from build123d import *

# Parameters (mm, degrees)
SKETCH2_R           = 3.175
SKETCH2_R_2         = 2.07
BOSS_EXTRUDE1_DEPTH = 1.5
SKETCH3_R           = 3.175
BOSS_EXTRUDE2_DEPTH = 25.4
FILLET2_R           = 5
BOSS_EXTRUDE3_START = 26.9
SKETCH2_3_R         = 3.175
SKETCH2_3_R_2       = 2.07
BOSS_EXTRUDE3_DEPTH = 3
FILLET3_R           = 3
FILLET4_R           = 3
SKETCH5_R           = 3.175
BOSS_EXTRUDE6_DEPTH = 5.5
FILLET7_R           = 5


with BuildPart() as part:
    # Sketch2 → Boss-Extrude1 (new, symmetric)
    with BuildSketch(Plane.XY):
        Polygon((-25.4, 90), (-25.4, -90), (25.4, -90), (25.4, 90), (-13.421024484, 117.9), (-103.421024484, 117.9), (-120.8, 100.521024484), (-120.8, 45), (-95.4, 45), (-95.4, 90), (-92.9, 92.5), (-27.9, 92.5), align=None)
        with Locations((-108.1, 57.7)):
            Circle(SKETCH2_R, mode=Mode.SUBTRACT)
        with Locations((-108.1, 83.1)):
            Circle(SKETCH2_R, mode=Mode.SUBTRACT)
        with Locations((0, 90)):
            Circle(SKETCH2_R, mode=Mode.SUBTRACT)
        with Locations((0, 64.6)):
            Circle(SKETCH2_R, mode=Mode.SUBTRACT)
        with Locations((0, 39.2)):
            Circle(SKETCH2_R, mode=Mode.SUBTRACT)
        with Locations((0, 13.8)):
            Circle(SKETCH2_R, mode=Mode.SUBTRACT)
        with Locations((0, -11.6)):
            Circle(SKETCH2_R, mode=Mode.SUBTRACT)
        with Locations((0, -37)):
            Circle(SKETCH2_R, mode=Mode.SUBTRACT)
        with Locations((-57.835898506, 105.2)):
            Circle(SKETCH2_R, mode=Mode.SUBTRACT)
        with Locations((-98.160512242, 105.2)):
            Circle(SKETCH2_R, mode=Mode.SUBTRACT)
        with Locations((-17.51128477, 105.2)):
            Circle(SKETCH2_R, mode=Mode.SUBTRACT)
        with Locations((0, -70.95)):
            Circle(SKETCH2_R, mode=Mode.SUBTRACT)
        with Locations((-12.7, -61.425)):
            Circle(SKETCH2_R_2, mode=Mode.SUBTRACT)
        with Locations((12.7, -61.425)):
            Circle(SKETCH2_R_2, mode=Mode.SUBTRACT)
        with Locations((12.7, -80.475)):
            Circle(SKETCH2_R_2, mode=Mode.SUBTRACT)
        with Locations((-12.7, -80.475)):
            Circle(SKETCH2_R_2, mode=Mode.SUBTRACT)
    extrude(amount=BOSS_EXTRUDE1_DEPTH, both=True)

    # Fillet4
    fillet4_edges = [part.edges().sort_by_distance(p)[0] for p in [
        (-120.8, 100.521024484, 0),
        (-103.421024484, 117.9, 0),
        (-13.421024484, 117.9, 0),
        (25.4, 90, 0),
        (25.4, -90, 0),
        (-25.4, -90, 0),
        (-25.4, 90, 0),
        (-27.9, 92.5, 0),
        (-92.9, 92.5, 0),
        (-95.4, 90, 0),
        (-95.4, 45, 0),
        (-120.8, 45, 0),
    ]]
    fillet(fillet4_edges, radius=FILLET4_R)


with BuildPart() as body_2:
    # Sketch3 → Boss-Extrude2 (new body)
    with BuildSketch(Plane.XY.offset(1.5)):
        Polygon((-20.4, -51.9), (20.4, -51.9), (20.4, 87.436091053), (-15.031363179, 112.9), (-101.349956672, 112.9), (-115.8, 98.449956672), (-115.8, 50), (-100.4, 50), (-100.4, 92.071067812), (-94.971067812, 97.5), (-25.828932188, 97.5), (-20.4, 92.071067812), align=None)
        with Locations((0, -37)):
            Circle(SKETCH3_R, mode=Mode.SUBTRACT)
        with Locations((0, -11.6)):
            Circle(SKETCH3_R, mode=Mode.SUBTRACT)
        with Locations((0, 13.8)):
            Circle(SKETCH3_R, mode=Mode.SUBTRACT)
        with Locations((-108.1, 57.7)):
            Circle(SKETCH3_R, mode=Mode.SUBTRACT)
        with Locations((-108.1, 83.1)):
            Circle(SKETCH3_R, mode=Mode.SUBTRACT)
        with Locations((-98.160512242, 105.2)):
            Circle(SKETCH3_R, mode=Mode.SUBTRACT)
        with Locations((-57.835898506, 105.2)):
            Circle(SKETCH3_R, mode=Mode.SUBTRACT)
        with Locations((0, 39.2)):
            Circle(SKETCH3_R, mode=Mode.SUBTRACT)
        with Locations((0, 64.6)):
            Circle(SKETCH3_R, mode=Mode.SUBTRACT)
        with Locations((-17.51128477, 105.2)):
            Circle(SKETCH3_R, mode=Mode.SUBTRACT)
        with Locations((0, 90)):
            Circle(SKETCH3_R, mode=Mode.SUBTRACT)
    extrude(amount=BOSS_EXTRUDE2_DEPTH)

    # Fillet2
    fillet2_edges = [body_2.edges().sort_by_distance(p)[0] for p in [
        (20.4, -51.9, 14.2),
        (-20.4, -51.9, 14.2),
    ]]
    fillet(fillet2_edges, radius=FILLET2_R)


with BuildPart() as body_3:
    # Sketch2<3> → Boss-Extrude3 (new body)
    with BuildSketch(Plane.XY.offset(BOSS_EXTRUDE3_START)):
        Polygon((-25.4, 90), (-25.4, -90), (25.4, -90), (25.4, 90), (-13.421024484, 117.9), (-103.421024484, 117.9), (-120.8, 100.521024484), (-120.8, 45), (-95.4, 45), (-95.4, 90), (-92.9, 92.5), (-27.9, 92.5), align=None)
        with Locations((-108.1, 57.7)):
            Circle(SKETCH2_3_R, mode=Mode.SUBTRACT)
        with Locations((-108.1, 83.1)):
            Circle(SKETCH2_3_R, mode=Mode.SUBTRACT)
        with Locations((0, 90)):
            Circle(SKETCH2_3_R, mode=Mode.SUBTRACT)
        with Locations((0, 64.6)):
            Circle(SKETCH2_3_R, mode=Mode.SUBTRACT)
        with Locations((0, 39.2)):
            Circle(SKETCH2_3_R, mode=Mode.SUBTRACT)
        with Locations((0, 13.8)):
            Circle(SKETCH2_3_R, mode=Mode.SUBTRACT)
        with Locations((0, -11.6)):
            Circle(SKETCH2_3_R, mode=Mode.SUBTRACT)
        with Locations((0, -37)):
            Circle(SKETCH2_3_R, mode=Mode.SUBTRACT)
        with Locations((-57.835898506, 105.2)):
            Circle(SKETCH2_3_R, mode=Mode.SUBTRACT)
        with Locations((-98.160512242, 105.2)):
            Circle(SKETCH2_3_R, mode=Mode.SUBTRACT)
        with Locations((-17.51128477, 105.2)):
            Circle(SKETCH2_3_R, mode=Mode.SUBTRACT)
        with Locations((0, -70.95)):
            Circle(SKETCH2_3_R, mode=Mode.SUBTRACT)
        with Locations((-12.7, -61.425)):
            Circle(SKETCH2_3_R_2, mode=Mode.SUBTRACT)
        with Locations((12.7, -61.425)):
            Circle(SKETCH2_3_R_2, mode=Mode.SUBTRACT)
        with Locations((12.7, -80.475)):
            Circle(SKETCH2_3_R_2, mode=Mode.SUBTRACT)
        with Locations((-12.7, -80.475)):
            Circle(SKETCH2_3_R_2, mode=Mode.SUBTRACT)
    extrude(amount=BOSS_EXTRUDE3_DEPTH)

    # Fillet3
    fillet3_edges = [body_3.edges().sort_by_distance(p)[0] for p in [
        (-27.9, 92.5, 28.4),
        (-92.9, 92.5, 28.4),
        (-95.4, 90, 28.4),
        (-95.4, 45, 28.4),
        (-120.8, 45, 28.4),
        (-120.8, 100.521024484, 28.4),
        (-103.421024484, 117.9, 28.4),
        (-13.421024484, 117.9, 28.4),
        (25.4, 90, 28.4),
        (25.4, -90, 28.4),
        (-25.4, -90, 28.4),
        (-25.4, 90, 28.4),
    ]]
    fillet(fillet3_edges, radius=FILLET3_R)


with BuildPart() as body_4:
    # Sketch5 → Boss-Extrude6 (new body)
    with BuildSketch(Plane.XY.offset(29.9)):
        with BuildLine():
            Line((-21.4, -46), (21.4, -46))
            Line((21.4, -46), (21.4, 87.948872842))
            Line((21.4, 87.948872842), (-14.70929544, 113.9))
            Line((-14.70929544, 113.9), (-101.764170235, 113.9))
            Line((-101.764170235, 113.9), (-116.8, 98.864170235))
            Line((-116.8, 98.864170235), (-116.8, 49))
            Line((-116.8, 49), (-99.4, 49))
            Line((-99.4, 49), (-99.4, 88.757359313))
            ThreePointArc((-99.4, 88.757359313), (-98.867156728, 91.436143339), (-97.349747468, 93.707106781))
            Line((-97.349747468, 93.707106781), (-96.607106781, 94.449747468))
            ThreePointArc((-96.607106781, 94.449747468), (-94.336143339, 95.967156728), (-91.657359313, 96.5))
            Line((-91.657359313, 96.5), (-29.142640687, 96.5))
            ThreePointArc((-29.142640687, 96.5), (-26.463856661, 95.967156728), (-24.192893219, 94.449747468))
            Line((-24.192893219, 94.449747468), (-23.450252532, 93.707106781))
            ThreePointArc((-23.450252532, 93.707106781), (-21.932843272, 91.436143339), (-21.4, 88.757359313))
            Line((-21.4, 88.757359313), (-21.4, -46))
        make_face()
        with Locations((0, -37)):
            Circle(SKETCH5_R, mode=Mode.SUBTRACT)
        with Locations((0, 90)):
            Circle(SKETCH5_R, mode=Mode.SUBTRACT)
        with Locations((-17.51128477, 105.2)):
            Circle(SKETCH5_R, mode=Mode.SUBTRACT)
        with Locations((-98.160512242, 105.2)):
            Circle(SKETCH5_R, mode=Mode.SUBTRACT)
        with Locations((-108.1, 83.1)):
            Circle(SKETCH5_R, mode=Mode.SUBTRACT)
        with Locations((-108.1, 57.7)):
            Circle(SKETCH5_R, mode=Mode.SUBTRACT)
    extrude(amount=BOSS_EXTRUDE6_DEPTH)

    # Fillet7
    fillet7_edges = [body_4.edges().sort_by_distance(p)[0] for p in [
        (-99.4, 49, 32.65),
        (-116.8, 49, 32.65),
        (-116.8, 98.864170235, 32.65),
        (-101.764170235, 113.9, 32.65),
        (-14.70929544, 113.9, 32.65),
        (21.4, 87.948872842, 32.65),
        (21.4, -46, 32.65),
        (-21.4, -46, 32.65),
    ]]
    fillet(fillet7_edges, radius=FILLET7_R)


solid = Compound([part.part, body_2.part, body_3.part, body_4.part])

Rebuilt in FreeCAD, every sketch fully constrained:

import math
import FreeCAD as App
import Part
import Sketcher
from FreeCAD import Vector


def edges_at(feature, points):
    """Names of the edges that pass closest to the given points."""
    edges = feature.Shape.Edges
    near = lambda p: min(range(len(edges)), key=lambda i: edges[i].distToShape(Part.Vertex(*p))[0])
    return sorted({f"Edge{near(p) + 1}" for p in points})


def add_polygon(sketch, points):
    """Adds a closed chain of lines whose ends are joined by coincident constraints."""
    first, n = sketch.GeometryCount, len(points)
    for a, b in zip(points, points[1:] + points[:1]):
        sketch.addGeometry(Part.LineSegment(App.Vector(*a, 0), App.Vector(*b, 0)), False)
    for i in range(n):
        sketch.addConstraint(Sketcher.Constraint("Coincident", first + i, 2, first + (i + 1) % n, 1))

doc = App.newDocument("Part")
body = doc.addObject("PartDesign::Body", "Body")

# Sketch on XY plane
sketch1 = doc.addObject("Sketcher::SketchObject", "Sketch")
body.addObject(sketch1)
sketch1.AttachmentSupport = (doc.XY_Plane, [""])
sketch1.MapMode = "FlatFace"
add_polygon(sketch1, [(-25.4, 90), (-25.4, -90), (25.4, -90), (25.4, 90), (-13.421024, 117.9), (-103.421024, 117.9), (-120.8, 100.521024), (-120.8, 45), (-95.4, 45), (-95.4, 90), (-92.9, 92.5), (-27.9, 92.5)])  # lines 0-11
sketch1.addGeometry(Part.Circle(Vector(-12.7, -80.475, 0), Vector(0, 0, 1), 2.07), False)  # 12
sketch1.addGeometry(Part.Circle(Vector(-12.7, -61.425, 0), Vector(0, 0, 1), 2.07), False)  # 13
sketch1.addGeometry(Part.Circle(Vector(0, -70.95, 0), Vector(0, 0, 1), 3.175), False)  # 14
sketch1.addGeometry(Part.Circle(Vector(12.7, -80.475, 0), Vector(0, 0, 1), 2.07), False)  # 15
sketch1.addGeometry(Part.Circle(Vector(12.7, -61.425, 0), Vector(0, 0, 1), 2.07), False)  # 16
sketch1.addGeometry(Part.Circle(Vector(0, -37, 0), Vector(0, 0, 1), 3.175), False)  # 17
sketch1.addGeometry(Part.Circle(Vector(0, -11.6, 0), Vector(0, 0, 1), 3.175), False)  # 18
sketch1.addGeometry(Part.Circle(Vector(-108.1, 57.7, 0), Vector(0, 0, 1), 3.175), False)  # 19
sketch1.addGeometry(Part.Circle(Vector(-108.1, 83.1, 0), Vector(0, 0, 1), 3.175), False)  # 20
sketch1.addGeometry(Part.Circle(Vector(-98.160512, 105.2, 0), Vector(0, 0, 1), 3.175), False)  # 21
sketch1.addGeometry(Part.Circle(Vector(-57.835899, 105.2, 0), Vector(0, 0, 1), 3.175), False)  # 22
sketch1.addGeometry(Part.Circle(Vector(0, 13.8, 0), Vector(0, 0, 1), 3.175), False)  # 23
sketch1.addGeometry(Part.Circle(Vector(0, 39.2, 0), Vector(0, 0, 1), 3.175), False)  # 24
sketch1.addGeometry(Part.Circle(Vector(-17.511285, 105.2, 0), Vector(0, 0, 1), 3.175), False)  # 25
sketch1.addGeometry(Part.Circle(Vector(0, 64.6, 0), Vector(0, 0, 1), 3.175), False)  # 26
sketch1.addGeometry(Part.Circle(Vector(0, 90, 0), Vector(0, 0, 1), 3.175), False)  # 27
sketch1.addConstraint(Sketcher.Constraint("Vertical", 0))
sketch1.addConstraint(Sketcher.Constraint("Horizontal", 1))
sketch1.addConstraint(Sketcher.Constraint("Vertical", 2))
sketch1.addConstraint(Sketcher.Constraint("Horizontal", 4))
sketch1.addConstraint(Sketcher.Constraint("Vertical", 6))
sketch1.addConstraint(Sketcher.Constraint("Horizontal", 7))
sketch1.addConstraint(Sketcher.Constraint("Vertical", 8))
sketch1.addConstraint(Sketcher.Constraint("Horizontal", 10))
sketch1.addConstraint(Sketcher.Constraint("Equal", 12, 13))
sketch1.addConstraint(Sketcher.Constraint("Equal", 13, 15))
sketch1.addConstraint(Sketcher.Constraint("Equal", 15, 16))
sketch1.addConstraint(Sketcher.Constraint("Equal", 14, 17))
sketch1.addConstraint(Sketcher.Constraint("Equal", 17, 18))
sketch1.addConstraint(Sketcher.Constraint("Equal", 18, 19))
sketch1.addConstraint(Sketcher.Constraint("Equal", 19, 20))
sketch1.addConstraint(Sketcher.Constraint("Equal", 20, 21))
sketch1.addConstraint(Sketcher.Constraint("Equal", 21, 22))
sketch1.addConstraint(Sketcher.Constraint("Equal", 22, 23))
sketch1.addConstraint(Sketcher.Constraint("Equal", 23, 24))
sketch1.addConstraint(Sketcher.Constraint("Equal", 24, 25))
sketch1.addConstraint(Sketcher.Constraint("Equal", 25, 26))
sketch1.addConstraint(Sketcher.Constraint("Equal", 26, 27))
sketch1.addConstraint(Sketcher.Constraint("Symmetric", 0, 2, 2, 2, -1, 1))
sketch1.addConstraint(Sketcher.Constraint("Symmetric", 12, 3, 15, 3, -2))
sketch1.addConstraint(Sketcher.Constraint("Symmetric", 13, 3, 16, 3, -2))
sketch1.addConstraint(Sketcher.Constraint("PointOnObject", 14, 3, -2))
sketch1.addConstraint(Sketcher.Constraint("PointOnObject", 17, 3, -2))
sketch1.addConstraint(Sketcher.Constraint("PointOnObject", 18, 3, -2))
sketch1.addConstraint(Sketcher.Constraint("PointOnObject", 23, 3, -2))
sketch1.addConstraint(Sketcher.Constraint("PointOnObject", 24, 3, -2))
sketch1.addConstraint(Sketcher.Constraint("PointOnObject", 26, 3, -2))
sketch1.addConstraint(Sketcher.Constraint("PointOnObject", 27, 3, -2))
sketch1.addConstraint(Sketcher.Constraint("Parallel", 5, 9))
sketch1.addConstraint(Sketcher.Constraint("Perpendicular", 9, 11))
sketch1.addConstraint(Sketcher.Constraint("Horizontal", 21, 3, 22, 3))
sketch1.addConstraint(Sketcher.Constraint("Horizontal", 22, 3, 25, 3))
sketch1.addConstraint(Sketcher.Constraint("Horizontal", 27, 3, 2, 2))
sketch1.addConstraint(Sketcher.Constraint("Horizontal", 2, 2, 8, 2))
sketch1.addConstraint(Sketcher.Constraint("Horizontal", 8, 2, 11, 2))
sketch1.addConstraint(Sketcher.Constraint("Vertical", 12, 3, 13, 3))
sketch1.addConstraint(Sketcher.Constraint("Vertical", 19, 3, 20, 3))
sketch1.addConstraint(Sketcher.Constraint("Equal", 9, 11))
sketch1.addConstraint(Sketcher.Constraint("Diameter", 12, 4.14))
sketch1.addConstraint(Sketcher.Constraint("Diameter", 14, 6.35))
sketch1.addConstraint(Sketcher.Constraint("DistanceX", 4, 2, 4, 1, 90.0))
sketch1.addConstraint(Sketcher.Constraint("DistanceX", 10, 1, 10, 2, 65.0))
sketch1.addConstraint(Sketcher.Constraint("DistanceY", 0, 2, 0, 1, 180.0))
sketch1.addConstraint(Sketcher.Constraint("DistanceY", 8, 1, 8, 2, 45.0))
sketch1.addConstraint(Sketcher.Constraint("DistanceX", 1, 1, 1, 2, 50.8))
sketch1.addConstraint(Sketcher.Constraint("DistanceX", 7, 1, 7, 2, 25.4))
sketch1.addConstraint(Sketcher.Constraint("DistanceY", 17, 3, -1, 1, 37.0))
sketch1.addConstraint(Sketcher.Constraint("DistanceY", 24, 3, 22, 3, 66.0))
sketch1.addConstraint(Sketcher.Constraint("DistanceX", 12, 3, -1, 1, 12.7))
sketch1.addConstraint(Sketcher.Constraint("DistanceY", 18, 3, -1, 1, 11.6))
sketch1.addConstraint(Sketcher.Constraint("DistanceX", 19, 3, -1, 1, 108.1))
sketch1.addConstraint(Sketcher.Constraint("DistanceY", -1, 1, 19, 3, 57.7))
sketch1.addConstraint(Sketcher.Constraint("DistanceY", -1, 1, 20, 3, 83.1))
sketch1.addConstraint(Sketcher.Constraint("DistanceY", -1, 1, 21, 3, 105.2))
sketch1.addConstraint(Sketcher.Constraint("DistanceY", -1, 1, 23, 3, 13.8))
sketch1.addConstraint(Sketcher.Constraint("DistanceY", -1, 1, 26, 3, 64.6))
sketch1.addConstraint(Sketcher.Constraint("DistanceY", -1, 1, 3, 2, 117.9))
sketch1.addConstraint(Sketcher.Constraint("DistanceX", 5, 2, -1, 1, 120.8))
sketch1.addConstraint(Sketcher.Constraint("DistanceY", 14, 3, -1, 1, 70.95))
sketch1.addConstraint(Sketcher.Constraint("DistanceY", 12, 3, 13, 3, 19.05))
sketch1.addConstraint(Sketcher.Constraint("DistanceY", 12, 3, -1, 1, 80.475))
sketch1.addConstraint(Sketcher.Constraint("DistanceX", 22, 3, -1, 1, 57.835899))
sketch1.addConstraint(Sketcher.Constraint("DistanceY", 6, 2, 6, 1, 55.521024))
sketch1.addConstraint(Sketcher.Constraint("DistanceX", 25, 3, 3, 2, 4.09026))
sketch1.addConstraint(Sketcher.Constraint("DistanceX", 21, 3, -1, 1, 98.160512))
pad1 = doc.addObject("PartDesign::Pad", "Pad")
body.addObject(pad1)
pad1.Profile = sketch1
pad1.Length = 3
pad1.Midplane = True
doc.recompute()

fillet = doc.addObject("PartDesign::Fillet", "Fillet")
body.addObject(fillet)
fillet.Base = (pad1, edges_at(pad1, [
    (-120.8, 100.521, 0),
    (-103.421, 117.9, 0),
    (-13.421, 117.9, 0),
    (25.4, 90, 0),
    (25.4, -90, 0),
    (-25.4, -90, 0),
    (-25.4, 90, 0),
    (-27.9, 92.5, 0),
    (-92.9, 92.5, 0),
    (-95.4, 90, 0),
    (-95.4, 45, 0),
    (-120.8, 45, 0),
]))
fillet.Radius = 3
body2 = doc.addObject("PartDesign::Body", "Body001")

# Sketch on XY plane
sketch2 = doc.addObject("Sketcher::SketchObject", "Sketch001")
body2.addObject(sketch2)
sketch2.AttachmentSupport = (doc.getObject("XY_Plane001"), [""])
sketch2.MapMode = "FlatFace"
sketch2.AttachmentOffset = App.Placement(Vector(0, 0, 1.5), App.Rotation())
add_polygon(sketch2, [(-20.4, -51.9), (20.4, -51.9), (20.4, 87.436091), (-15.031363, 112.9), (-101.349957, 112.9), (-115.8, 98.449957), (-115.8, 50), (-100.4, 50), (-100.4, 92.071068), (-94.971068, 97.5), (-25.828932, 97.5), (-20.4, 92.071068)])  # lines 0-11
sketch2.addGeometry(Part.Circle(Vector(0, -37, 0), Vector(0, 0, 1), 3.175), False)  # 12
sketch2.addGeometry(Part.Circle(Vector(0, -11.6, 0), Vector(0, 0, 1), 3.175), False)  # 13
sketch2.addGeometry(Part.Circle(Vector(0, 13.8, 0), Vector(0, 0, 1), 3.175), False)  # 14
sketch2.addGeometry(Part.Circle(Vector(-108.1, 57.7, 0), Vector(0, 0, 1), 3.175), False)  # 15
sketch2.addGeometry(Part.Circle(Vector(-108.1, 83.1, 0), Vector(0, 0, 1), 3.175), False)  # 16
sketch2.addGeometry(Part.Circle(Vector(-98.160512, 105.2, 0), Vector(0, 0, 1), 3.175), False)  # 17
sketch2.addGeometry(Part.Circle(Vector(-57.835899, 105.2, 0), Vector(0, 0, 1), 3.175), False)  # 18
sketch2.addGeometry(Part.Circle(Vector(0, 39.2, 0), Vector(0, 0, 1), 3.175), False)  # 19
sketch2.addGeometry(Part.Circle(Vector(0, 64.6, 0), Vector(0, 0, 1), 3.175), False)  # 20
sketch2.addGeometry(Part.Circle(Vector(-17.511285, 105.2, 0), Vector(0, 0, 1), 3.175), False)  # 21
sketch2.addGeometry(Part.Circle(Vector(0, 90, 0), Vector(0, 0, 1), 3.175), False)  # 22
sketch2.addConstraint(Sketcher.Constraint("Horizontal", 0))
sketch2.addConstraint(Sketcher.Constraint("Vertical", 1))
sketch2.addConstraint(Sketcher.Constraint("Horizontal", 3))
sketch2.addConstraint(Sketcher.Constraint("Vertical", 5))
sketch2.addConstraint(Sketcher.Constraint("Horizontal", 6))
sketch2.addConstraint(Sketcher.Constraint("Vertical", 7))
sketch2.addConstraint(Sketcher.Constraint("Horizontal", 9))
sketch2.addConstraint(Sketcher.Constraint("Vertical", 11))
sketch2.addConstraint(Sketcher.Constraint("Equal", 12, 13))
sketch2.addConstraint(Sketcher.Constraint("Equal", 13, 14))
sketch2.addConstraint(Sketcher.Constraint("Equal", 14, 15))
sketch2.addConstraint(Sketcher.Constraint("Equal", 15, 16))
sketch2.addConstraint(Sketcher.Constraint("Equal", 16, 17))
sketch2.addConstraint(Sketcher.Constraint("Equal", 17, 18))
sketch2.addConstraint(Sketcher.Constraint("Equal", 18, 19))
sketch2.addConstraint(Sketcher.Constraint("Equal", 19, 20))
sketch2.addConstraint(Sketcher.Constraint("Equal", 20, 21))
sketch2.addConstraint(Sketcher.Constraint("Equal", 21, 22))
sketch2.addConstraint(Sketcher.Constraint("PointOnObject", 12, 3, -2))
sketch2.addConstraint(Sketcher.Constraint("PointOnObject", 13, 3, -2))
sketch2.addConstraint(Sketcher.Constraint("PointOnObject", 14, 3, -2))
sketch2.addConstraint(Sketcher.Constraint("PointOnObject", 19, 3, -2))
sketch2.addConstraint(Sketcher.Constraint("PointOnObject", 20, 3, -2))
sketch2.addConstraint(Sketcher.Constraint("PointOnObject", 22, 3, -2))
sketch2.addConstraint(Sketcher.Constraint("Parallel", 4, 8))
sketch2.addConstraint(Sketcher.Constraint("Perpendicular", 8, 10))
sketch2.addConstraint(Sketcher.Constraint("Horizontal", 17, 3, 18, 3))
sketch2.addConstraint(Sketcher.Constraint("Horizontal", 18, 3, 21, 3))
sketch2.addConstraint(Sketcher.Constraint("Horizontal", 7, 2, 10, 2))
sketch2.addConstraint(Sketcher.Constraint("Vertical", 15, 3, 16, 3))
sketch2.addConstraint(Sketcher.Constraint("Equal", 8, 10))
sketch2.addConstraint(Sketcher.Constraint("Diameter", 12, 6.35))
sketch2.addConstraint(Sketcher.Constraint("DistanceX", 0, 1, 0, 2, 40.8))
sketch2.addConstraint(Sketcher.Constraint("DistanceX", 6, 1, 6, 2, 15.4))
sketch2.addConstraint(Sketcher.Constraint("DistanceY", 12, 3, -1, 1, 37.0))
sketch2.addConstraint(Sketcher.Constraint("DistanceY", -1, 1, 22, 3, 90.0))
sketch2.addConstraint(Sketcher.Constraint("DistanceY", -1, 1, 5, 2, 50.0))
sketch2.addConstraint(Sketcher.Constraint("DistanceY", 19, 3, 18, 3, 66.0))
sketch2.addConstraint(Sketcher.Constraint("DistanceY", 13, 3, -1, 1, 11.6))
sketch2.addConstraint(Sketcher.Constraint("DistanceY", -1, 1, 14, 3, 13.8))
sketch2.addConstraint(Sketcher.Constraint("DistanceX", 15, 3, -1, 1, 108.1))
sketch2.addConstraint(Sketcher.Constraint("DistanceY", -1, 1, 15, 3, 57.7))
sketch2.addConstraint(Sketcher.Constraint("DistanceY", -1, 1, 16, 3, 83.1))
sketch2.addConstraint(Sketcher.Constraint("DistanceY", -1, 1, 17, 3, 105.2))
sketch2.addConstraint(Sketcher.Constraint("DistanceY", -1, 1, 20, 3, 64.6))
sketch2.addConstraint(Sketcher.Constraint("DistanceX", -1, 1, 0, 2, 20.4))
sketch2.addConstraint(Sketcher.Constraint("DistanceY", 0, 2, -1, 1, 51.9))
sketch2.addConstraint(Sketcher.Constraint("DistanceY", -1, 1, 2, 2, 112.9))
sketch2.addConstraint(Sketcher.Constraint("DistanceX", 4, 2, -1, 1, 115.8))
sketch2.addConstraint(Sketcher.Constraint("DistanceY", -1, 1, 8, 2, 97.5))
sketch2.addConstraint(Sketcher.Constraint("DistanceY", 1, 1, 1, 2, 139.336091))
sketch2.addConstraint(Sketcher.Constraint("DistanceX", 18, 3, -1, 1, 57.835899))
sketch2.addConstraint(Sketcher.Constraint("Distance", 8, 7.67767))
sketch2.addConstraint(Sketcher.Constraint("DistanceX", 3, 2, 3, 1, 86.318593))
sketch2.addConstraint(Sketcher.Constraint("DistanceY", 5, 2, 5, 1, 48.449957))
sketch2.addConstraint(Sketcher.Constraint("DistanceX", 21, 3, 2, 2, 2.479922))
sketch2.addConstraint(Sketcher.Constraint("DistanceX", 17, 3, -1, 1, 98.160512))
pad2 = doc.addObject("PartDesign::Pad", "Pad001")
body2.addObject(pad2)
pad2.Profile = sketch2
pad2.Length = 25.4
doc.recompute()

fillet2 = doc.addObject("PartDesign::Fillet", "Fillet001")
body2.addObject(fillet2)
fillet2.Base = (pad2, edges_at(pad2, [(20.4, -51.9, 14.2), (-20.4, -51.9, 14.2)]))
fillet2.Radius = 5
body3 = doc.addObject("PartDesign::Body", "Body002")

# Sketch on XY plane
sketch3 = doc.addObject("Sketcher::SketchObject", "Sketch002")
body3.addObject(sketch3)
sketch3.AttachmentSupport = (doc.getObject("XY_Plane002"), [""])
sketch3.MapMode = "FlatFace"
sketch3.AttachmentOffset = App.Placement(Vector(0, 0, 26.9), App.Rotation())
add_polygon(sketch3, [(-25.4, 90), (-25.4, -90), (25.4, -90), (25.4, 90), (-13.421024, 117.9), (-103.421024, 117.9), (-120.8, 100.521024), (-120.8, 45), (-95.4, 45), (-95.4, 90), (-92.9, 92.5), (-27.9, 92.5)])  # lines 0-11
sketch3.addGeometry(Part.Circle(Vector(-12.7, -80.475, 0), Vector(0, 0, 1), 2.07), False)  # 12
sketch3.addGeometry(Part.Circle(Vector(-12.7, -61.425, 0), Vector(0, 0, 1), 2.07), False)  # 13
sketch3.addGeometry(Part.Circle(Vector(0, -70.95, 0), Vector(0, 0, 1), 3.175), False)  # 14
sketch3.addGeometry(Part.Circle(Vector(12.7, -80.475, 0), Vector(0, 0, 1), 2.07), False)  # 15
sketch3.addGeometry(Part.Circle(Vector(12.7, -61.425, 0), Vector(0, 0, 1), 2.07), False)  # 16
sketch3.addGeometry(Part.Circle(Vector(0, -37, 0), Vector(0, 0, 1), 3.175), False)  # 17
sketch3.addGeometry(Part.Circle(Vector(0, -11.6, 0), Vector(0, 0, 1), 3.175), False)  # 18
sketch3.addGeometry(Part.Circle(Vector(-108.1, 57.7, 0), Vector(0, 0, 1), 3.175), False)  # 19
sketch3.addGeometry(Part.Circle(Vector(-108.1, 83.1, 0), Vector(0, 0, 1), 3.175), False)  # 20
sketch3.addGeometry(Part.Circle(Vector(-98.160512, 105.2, 0), Vector(0, 0, 1), 3.175), False)  # 21
sketch3.addGeometry(Part.Circle(Vector(-57.835899, 105.2, 0), Vector(0, 0, 1), 3.175), False)  # 22
sketch3.addGeometry(Part.Circle(Vector(0, 13.8, 0), Vector(0, 0, 1), 3.175), False)  # 23
sketch3.addGeometry(Part.Circle(Vector(0, 39.2, 0), Vector(0, 0, 1), 3.175), False)  # 24
sketch3.addGeometry(Part.Circle(Vector(-17.511285, 105.2, 0), Vector(0, 0, 1), 3.175), False)  # 25
sketch3.addGeometry(Part.Circle(Vector(0, 64.6, 0), Vector(0, 0, 1), 3.175), False)  # 26
sketch3.addGeometry(Part.Circle(Vector(0, 90, 0), Vector(0, 0, 1), 3.175), False)  # 27
sketch3.addConstraint(Sketcher.Constraint("Vertical", 0))
sketch3.addConstraint(Sketcher.Constraint("Horizontal", 1))
sketch3.addConstraint(Sketcher.Constraint("Vertical", 2))
sketch3.addConstraint(Sketcher.Constraint("Horizontal", 4))
sketch3.addConstraint(Sketcher.Constraint("Vertical", 6))
sketch3.addConstraint(Sketcher.Constraint("Horizontal", 7))
sketch3.addConstraint(Sketcher.Constraint("Vertical", 8))
sketch3.addConstraint(Sketcher.Constraint("Horizontal", 10))
sketch3.addConstraint(Sketcher.Constraint("Equal", 12, 13))
sketch3.addConstraint(Sketcher.Constraint("Equal", 13, 15))
sketch3.addConstraint(Sketcher.Constraint("Equal", 15, 16))
sketch3.addConstraint(Sketcher.Constraint("Equal", 14, 17))
sketch3.addConstraint(Sketcher.Constraint("Equal", 17, 18))
sketch3.addConstraint(Sketcher.Constraint("Equal", 18, 19))
sketch3.addConstraint(Sketcher.Constraint("Equal", 19, 20))
sketch3.addConstraint(Sketcher.Constraint("Equal", 20, 21))
sketch3.addConstraint(Sketcher.Constraint("Equal", 21, 22))
sketch3.addConstraint(Sketcher.Constraint("Equal", 22, 23))
sketch3.addConstraint(Sketcher.Constraint("Equal", 23, 24))
sketch3.addConstraint(Sketcher.Constraint("Equal", 24, 25))
sketch3.addConstraint(Sketcher.Constraint("Equal", 25, 26))
sketch3.addConstraint(Sketcher.Constraint("Equal", 26, 27))
sketch3.addConstraint(Sketcher.Constraint("Symmetric", 0, 2, 2, 2, -1, 1))
sketch3.addConstraint(Sketcher.Constraint("Symmetric", 12, 3, 15, 3, -2))
sketch3.addConstraint(Sketcher.Constraint("Symmetric", 13, 3, 16, 3, -2))
sketch3.addConstraint(Sketcher.Constraint("PointOnObject", 14, 3, -2))
sketch3.addConstraint(Sketcher.Constraint("PointOnObject", 17, 3, -2))
sketch3.addConstraint(Sketcher.Constraint("PointOnObject", 18, 3, -2))
sketch3.addConstraint(Sketcher.Constraint("PointOnObject", 23, 3, -2))
sketch3.addConstraint(Sketcher.Constraint("PointOnObject", 24, 3, -2))
sketch3.addConstraint(Sketcher.Constraint("PointOnObject", 26, 3, -2))
sketch3.addConstraint(Sketcher.Constraint("PointOnObject", 27, 3, -2))
sketch3.addConstraint(Sketcher.Constraint("Parallel", 5, 9))
sketch3.addConstraint(Sketcher.Constraint("Perpendicular", 9, 11))
sketch3.addConstraint(Sketcher.Constraint("Horizontal", 21, 3, 22, 3))
sketch3.addConstraint(Sketcher.Constraint("Horizontal", 22, 3, 25, 3))
sketch3.addConstraint(Sketcher.Constraint("Horizontal", 27, 3, 2, 2))
sketch3.addConstraint(Sketcher.Constraint("Horizontal", 2, 2, 8, 2))
sketch3.addConstraint(Sketcher.Constraint("Horizontal", 8, 2, 11, 2))
sketch3.addConstraint(Sketcher.Constraint("Vertical", 12, 3, 13, 3))
sketch3.addConstraint(Sketcher.Constraint("Vertical", 19, 3, 20, 3))
sketch3.addConstraint(Sketcher.Constraint("Equal", 9, 11))
sketch3.addConstraint(Sketcher.Constraint("Diameter", 12, 4.14))
sketch3.addConstraint(Sketcher.Constraint("Diameter", 14, 6.35))
sketch3.addConstraint(Sketcher.Constraint("DistanceX", 4, 2, 4, 1, 90.0))
sketch3.addConstraint(Sketcher.Constraint("DistanceX", 10, 1, 10, 2, 65.0))
sketch3.addConstraint(Sketcher.Constraint("DistanceY", 0, 2, 0, 1, 180.0))
sketch3.addConstraint(Sketcher.Constraint("DistanceY", 8, 1, 8, 2, 45.0))
sketch3.addConstraint(Sketcher.Constraint("DistanceX", 1, 1, 1, 2, 50.8))
sketch3.addConstraint(Sketcher.Constraint("DistanceX", 7, 1, 7, 2, 25.4))
sketch3.addConstraint(Sketcher.Constraint("DistanceY", 17, 3, -1, 1, 37.0))
sketch3.addConstraint(Sketcher.Constraint("DistanceY", 24, 3, 22, 3, 66.0))
sketch3.addConstraint(Sketcher.Constraint("DistanceX", 12, 3, -1, 1, 12.7))
sketch3.addConstraint(Sketcher.Constraint("DistanceY", 18, 3, -1, 1, 11.6))
sketch3.addConstraint(Sketcher.Constraint("DistanceX", 19, 3, -1, 1, 108.1))
sketch3.addConstraint(Sketcher.Constraint("DistanceY", -1, 1, 19, 3, 57.7))
sketch3.addConstraint(Sketcher.Constraint("DistanceY", -1, 1, 20, 3, 83.1))
sketch3.addConstraint(Sketcher.Constraint("DistanceY", -1, 1, 21, 3, 105.2))
sketch3.addConstraint(Sketcher.Constraint("DistanceY", -1, 1, 23, 3, 13.8))
sketch3.addConstraint(Sketcher.Constraint("DistanceY", -1, 1, 26, 3, 64.6))
sketch3.addConstraint(Sketcher.Constraint("DistanceY", -1, 1, 3, 2, 117.9))
sketch3.addConstraint(Sketcher.Constraint("DistanceX", 5, 2, -1, 1, 120.8))
sketch3.addConstraint(Sketcher.Constraint("DistanceY", 14, 3, -1, 1, 70.95))
sketch3.addConstraint(Sketcher.Constraint("DistanceY", 12, 3, 13, 3, 19.05))
sketch3.addConstraint(Sketcher.Constraint("DistanceY", 12, 3, -1, 1, 80.475))
sketch3.addConstraint(Sketcher.Constraint("DistanceX", 22, 3, -1, 1, 57.835899))
sketch3.addConstraint(Sketcher.Constraint("DistanceY", 6, 2, 6, 1, 55.521024))
sketch3.addConstraint(Sketcher.Constraint("DistanceX", 25, 3, 3, 2, 4.09026))
sketch3.addConstraint(Sketcher.Constraint("DistanceX", 21, 3, -1, 1, 98.160512))
pad3 = doc.addObject("PartDesign::Pad", "Pad002")
body3.addObject(pad3)
pad3.Profile = sketch3
pad3.Length = 3
doc.recompute()

fillet3 = doc.addObject("PartDesign::Fillet", "Fillet002")
body3.addObject(fillet3)
fillet3.Base = (pad3, edges_at(pad3, [
    (-27.9, 92.5, 28.4),
    (-92.9, 92.5, 28.4),
    (-95.4, 90, 28.4),
    (-95.4, 45, 28.4),
    (-120.8, 45, 28.4),
    (-120.8, 100.521, 28.4),
    (-103.421, 117.9, 28.4),
    (-13.421, 117.9, 28.4),
    (25.4, 90, 28.4),
    (25.4, -90, 28.4),
    (-25.4, -90, 28.4),
    (-25.4, 90, 28.4),
]))
fillet3.Radius = 3
body4 = doc.addObject("PartDesign::Body", "Body003")

# Sketch on XY plane
sketch4 = doc.addObject("Sketcher::SketchObject", "Sketch003")
body4.addObject(sketch4)
sketch4.AttachmentSupport = (doc.getObject("XY_Plane003"), [""])
sketch4.MapMode = "FlatFace"
sketch4.AttachmentOffset = App.Placement(Vector(0, 0, 29.9), App.Rotation())
sketch4.addGeometry(Part.LineSegment(Vector(-21.4, -46, 0), Vector(21.4, -46, 0)), False)
sketch4.addGeometry(Part.LineSegment(Vector(21.4, -46, 0), Vector(21.4, 87.948873, 0)), False)
sketch4.addGeometry(Part.LineSegment(Vector(21.4, 87.948873, 0), Vector(-14.709295, 113.9, 0)), False)
sketch4.addGeometry(Part.LineSegment(Vector(-14.709295, 113.9, 0), Vector(-101.76417, 113.9, 0)), False)
sketch4.addGeometry(Part.LineSegment(Vector(-101.76417, 113.9, 0), Vector(-116.8, 98.86417, 0)), False)
sketch4.addGeometry(Part.LineSegment(Vector(-116.8, 98.86417, 0), Vector(-116.8, 49, 0)), False)
sketch4.addGeometry(Part.LineSegment(Vector(-116.8, 49, 0), Vector(-99.4, 49, 0)), False)
sketch4.addGeometry(Part.LineSegment(Vector(-99.4, 49, 0), Vector(-99.4, 88.757359, 0)), False)
sketch4.addGeometry(Part.ArcOfCircle(Part.Circle(Vector(-92.4, 88.757359, 0), Vector(0, 0, 1), 7), math.radians(135), math.radians(180)), False)
sketch4.addGeometry(Part.LineSegment(Vector(-97.349747, 93.707107, 0), Vector(-96.607107, 94.449747, 0)), False)
sketch4.addGeometry(Part.ArcOfCircle(Part.Circle(Vector(-91.657359, 89.5, 0), Vector(0, 0, 1), 7), math.radians(90), math.radians(135)), False)
sketch4.addGeometry(Part.LineSegment(Vector(-91.657359, 96.5, 0), Vector(-29.142641, 96.5, 0)), False)
sketch4.addGeometry(Part.ArcOfCircle(Part.Circle(Vector(-29.142641, 89.5, 0), Vector(0, 0, 1), 7), math.radians(45), math.radians(90)), False)
sketch4.addGeometry(Part.LineSegment(Vector(-24.192893, 94.449747, 0), Vector(-23.450253, 93.707107, 0)), False)
sketch4.addGeometry(Part.ArcOfCircle(Part.Circle(Vector(-28.4, 88.757359, 0), Vector(0, 0, 1), 7), math.radians(0), math.radians(45)), False)
sketch4.addGeometry(Part.LineSegment(Vector(-21.4, 88.757359, 0), Vector(-21.4, -46, 0)), False)
sketch4.addGeometry(Part.Circle(Vector(0, -37, 0), Vector(0, 0, 1), 3.175), False)
sketch4.addGeometry(Part.Circle(Vector(-108.1, 57.7, 0), Vector(0, 0, 1), 3.175), False)
sketch4.addGeometry(Part.Circle(Vector(-108.1, 83.1, 0), Vector(0, 0, 1), 3.175), False)
sketch4.addGeometry(Part.Circle(Vector(-98.160512, 105.2, 0), Vector(0, 0, 1), 3.175), False)
sketch4.addGeometry(Part.Circle(Vector(-17.511285, 105.2, 0), Vector(0, 0, 1), 3.175), False)
sketch4.addGeometry(Part.Circle(Vector(0, 90, 0), Vector(0, 0, 1), 3.175), False)
sketch4.addConstraint(Sketcher.Constraint("Coincident", 0, 2, 1, 1))
sketch4.addConstraint(Sketcher.Constraint("Coincident", 1, 2, 2, 1))
sketch4.addConstraint(Sketcher.Constraint("Coincident", 2, 2, 3, 1))
sketch4.addConstraint(Sketcher.Constraint("Coincident", 3, 2, 4, 1))
sketch4.addConstraint(Sketcher.Constraint("Coincident", 4, 2, 5, 1))
sketch4.addConstraint(Sketcher.Constraint("Coincident", 5, 2, 6, 1))
sketch4.addConstraint(Sketcher.Constraint("Coincident", 6, 2, 7, 1))
sketch4.addConstraint(Sketcher.Constraint("Tangent", 7, 2, 8, 2))
sketch4.addConstraint(Sketcher.Constraint("Tangent", 8, 1, 9, 1))
sketch4.addConstraint(Sketcher.Constraint("Tangent", 9, 2, 10, 2))
sketch4.addConstraint(Sketcher.Constraint("Tangent", 10, 1, 11, 1))
sketch4.addConstraint(Sketcher.Constraint("Tangent", 11, 2, 12, 2))
sketch4.addConstraint(Sketcher.Constraint("Tangent", 12, 1, 13, 1))
sketch4.addConstraint(Sketcher.Constraint("Tangent", 13, 2, 14, 2))
sketch4.addConstraint(Sketcher.Constraint("Tangent", 14, 1, 15, 1))
sketch4.addConstraint(Sketcher.Constraint("Coincident", 15, 2, 0, 1))
sketch4.addConstraint(Sketcher.Constraint("Horizontal", 0))
sketch4.addConstraint(Sketcher.Constraint("Vertical", 1))
sketch4.addConstraint(Sketcher.Constraint("Horizontal", 3))
sketch4.addConstraint(Sketcher.Constraint("Vertical", 5))
sketch4.addConstraint(Sketcher.Constraint("Horizontal", 6))
sketch4.addConstraint(Sketcher.Constraint("Vertical", 7))
sketch4.addConstraint(Sketcher.Constraint("Horizontal", 11))
sketch4.addConstraint(Sketcher.Constraint("Vertical", 15))
sketch4.addConstraint(Sketcher.Constraint("Equal", 8, 10))
sketch4.addConstraint(Sketcher.Constraint("Equal", 10, 12))
sketch4.addConstraint(Sketcher.Constraint("Equal", 12, 14))
sketch4.addConstraint(Sketcher.Constraint("Equal", 16, 17))
sketch4.addConstraint(Sketcher.Constraint("Equal", 17, 18))
sketch4.addConstraint(Sketcher.Constraint("Equal", 18, 19))
sketch4.addConstraint(Sketcher.Constraint("Equal", 19, 20))
sketch4.addConstraint(Sketcher.Constraint("Equal", 20, 21))
sketch4.addConstraint(Sketcher.Constraint("PointOnObject", 16, 3, -2))
sketch4.addConstraint(Sketcher.Constraint("PointOnObject", 21, 3, -2))
sketch4.addConstraint(Sketcher.Constraint("Parallel", 4, 9))
sketch4.addConstraint(Sketcher.Constraint("Perpendicular", 9, 13))
sketch4.addConstraint(Sketcher.Constraint("Horizontal", 8, 3, 14, 3))
sketch4.addConstraint(Sketcher.Constraint("Horizontal", 19, 3, 20, 3))
sketch4.addConstraint(Sketcher.Constraint("Horizontal", 9, 2, 12, 1))
sketch4.addConstraint(Sketcher.Constraint("Vertical", 17, 3, 18, 3))
sketch4.addConstraint(Sketcher.Constraint("Radius", 8, 7.0))
sketch4.addConstraint(Sketcher.Constraint("Diameter", 16, 6.35))
sketch4.addConstraint(Sketcher.Constraint("DistanceX", 0, 1, 0, 2, 42.8))
sketch4.addConstraint(Sketcher.Constraint("DistanceX", 6, 1, 6, 2, 17.4))
sketch4.addConstraint(Sketcher.Constraint("DistanceY", 16, 3, -1, 1, 37.0))
sketch4.addConstraint(Sketcher.Constraint("DistanceY", -1, 1, 21, 3, 90.0))
sketch4.addConstraint(Sketcher.Constraint("DistanceY", 0, 2, -1, 1, 46.0))
sketch4.addConstraint(Sketcher.Constraint("DistanceY", -1, 1, 5, 2, 49.0))
sketch4.addConstraint(Sketcher.Constraint("DistanceX", 8, 3, 14, 3, 64.0))
sketch4.addConstraint(Sketcher.Constraint("DistanceX", 8, 3, -1, 1, 92.4))
sketch4.addConstraint(Sketcher.Constraint("DistanceY", -1, 1, 10, 3, 89.5))
sketch4.addConstraint(Sketcher.Constraint("DistanceX", 17, 3, -1, 1, 108.1))
sketch4.addConstraint(Sketcher.Constraint("DistanceY", -1, 1, 17, 3, 57.7))
sketch4.addConstraint(Sketcher.Constraint("DistanceY", -1, 1, 18, 3, 83.1))
sketch4.addConstraint(Sketcher.Constraint("DistanceY", -1, 1, 19, 3, 105.2))
sketch4.addConstraint(Sketcher.Constraint("DistanceY", -1, 1, 2, 2, 113.9))
sketch4.addConstraint(Sketcher.Constraint("DistanceX", 11, 1, 11, 2, 62.514719))
sketch4.addConstraint(Sketcher.Constraint("DistanceY", 5, 2, 5, 1, 49.86417))
sketch4.addConstraint(Sketcher.Constraint("DistanceX", 3, 2, 3, 1, 87.054875))
sketch4.addConstraint(Sketcher.Constraint("DistanceY", 1, 1, 1, 2, 133.948873))
sketch4.addConstraint(Sketcher.Constraint("DistanceX", 19, 3, 12, 3, 69.017872))
sketch4.addConstraint(Sketcher.Constraint("DistanceX", 20, 3, 2, 2, 2.801989))
pad4 = doc.addObject("PartDesign::Pad", "Pad003")
body4.addObject(pad4)
pad4.Profile = sketch4
pad4.Length = 5.5
doc.recompute()

fillet4 = doc.addObject("PartDesign::Fillet", "Fillet003")
body4.addObject(fillet4)
fillet4.Base = (pad4, edges_at(pad4, [
    (-99.4, 49, 32.65),
    (-116.8, 49, 32.65),
    (-116.8, 98.864, 32.65),
    (-101.764, 113.9, 32.65),
    (-14.709, 113.9, 32.65),
    (21.4, 87.949, 32.65),
    (21.4, -46, 32.65),
    (-21.4, -46, 32.65),
]))
fillet4.Radius = 5

doc.recompute()
